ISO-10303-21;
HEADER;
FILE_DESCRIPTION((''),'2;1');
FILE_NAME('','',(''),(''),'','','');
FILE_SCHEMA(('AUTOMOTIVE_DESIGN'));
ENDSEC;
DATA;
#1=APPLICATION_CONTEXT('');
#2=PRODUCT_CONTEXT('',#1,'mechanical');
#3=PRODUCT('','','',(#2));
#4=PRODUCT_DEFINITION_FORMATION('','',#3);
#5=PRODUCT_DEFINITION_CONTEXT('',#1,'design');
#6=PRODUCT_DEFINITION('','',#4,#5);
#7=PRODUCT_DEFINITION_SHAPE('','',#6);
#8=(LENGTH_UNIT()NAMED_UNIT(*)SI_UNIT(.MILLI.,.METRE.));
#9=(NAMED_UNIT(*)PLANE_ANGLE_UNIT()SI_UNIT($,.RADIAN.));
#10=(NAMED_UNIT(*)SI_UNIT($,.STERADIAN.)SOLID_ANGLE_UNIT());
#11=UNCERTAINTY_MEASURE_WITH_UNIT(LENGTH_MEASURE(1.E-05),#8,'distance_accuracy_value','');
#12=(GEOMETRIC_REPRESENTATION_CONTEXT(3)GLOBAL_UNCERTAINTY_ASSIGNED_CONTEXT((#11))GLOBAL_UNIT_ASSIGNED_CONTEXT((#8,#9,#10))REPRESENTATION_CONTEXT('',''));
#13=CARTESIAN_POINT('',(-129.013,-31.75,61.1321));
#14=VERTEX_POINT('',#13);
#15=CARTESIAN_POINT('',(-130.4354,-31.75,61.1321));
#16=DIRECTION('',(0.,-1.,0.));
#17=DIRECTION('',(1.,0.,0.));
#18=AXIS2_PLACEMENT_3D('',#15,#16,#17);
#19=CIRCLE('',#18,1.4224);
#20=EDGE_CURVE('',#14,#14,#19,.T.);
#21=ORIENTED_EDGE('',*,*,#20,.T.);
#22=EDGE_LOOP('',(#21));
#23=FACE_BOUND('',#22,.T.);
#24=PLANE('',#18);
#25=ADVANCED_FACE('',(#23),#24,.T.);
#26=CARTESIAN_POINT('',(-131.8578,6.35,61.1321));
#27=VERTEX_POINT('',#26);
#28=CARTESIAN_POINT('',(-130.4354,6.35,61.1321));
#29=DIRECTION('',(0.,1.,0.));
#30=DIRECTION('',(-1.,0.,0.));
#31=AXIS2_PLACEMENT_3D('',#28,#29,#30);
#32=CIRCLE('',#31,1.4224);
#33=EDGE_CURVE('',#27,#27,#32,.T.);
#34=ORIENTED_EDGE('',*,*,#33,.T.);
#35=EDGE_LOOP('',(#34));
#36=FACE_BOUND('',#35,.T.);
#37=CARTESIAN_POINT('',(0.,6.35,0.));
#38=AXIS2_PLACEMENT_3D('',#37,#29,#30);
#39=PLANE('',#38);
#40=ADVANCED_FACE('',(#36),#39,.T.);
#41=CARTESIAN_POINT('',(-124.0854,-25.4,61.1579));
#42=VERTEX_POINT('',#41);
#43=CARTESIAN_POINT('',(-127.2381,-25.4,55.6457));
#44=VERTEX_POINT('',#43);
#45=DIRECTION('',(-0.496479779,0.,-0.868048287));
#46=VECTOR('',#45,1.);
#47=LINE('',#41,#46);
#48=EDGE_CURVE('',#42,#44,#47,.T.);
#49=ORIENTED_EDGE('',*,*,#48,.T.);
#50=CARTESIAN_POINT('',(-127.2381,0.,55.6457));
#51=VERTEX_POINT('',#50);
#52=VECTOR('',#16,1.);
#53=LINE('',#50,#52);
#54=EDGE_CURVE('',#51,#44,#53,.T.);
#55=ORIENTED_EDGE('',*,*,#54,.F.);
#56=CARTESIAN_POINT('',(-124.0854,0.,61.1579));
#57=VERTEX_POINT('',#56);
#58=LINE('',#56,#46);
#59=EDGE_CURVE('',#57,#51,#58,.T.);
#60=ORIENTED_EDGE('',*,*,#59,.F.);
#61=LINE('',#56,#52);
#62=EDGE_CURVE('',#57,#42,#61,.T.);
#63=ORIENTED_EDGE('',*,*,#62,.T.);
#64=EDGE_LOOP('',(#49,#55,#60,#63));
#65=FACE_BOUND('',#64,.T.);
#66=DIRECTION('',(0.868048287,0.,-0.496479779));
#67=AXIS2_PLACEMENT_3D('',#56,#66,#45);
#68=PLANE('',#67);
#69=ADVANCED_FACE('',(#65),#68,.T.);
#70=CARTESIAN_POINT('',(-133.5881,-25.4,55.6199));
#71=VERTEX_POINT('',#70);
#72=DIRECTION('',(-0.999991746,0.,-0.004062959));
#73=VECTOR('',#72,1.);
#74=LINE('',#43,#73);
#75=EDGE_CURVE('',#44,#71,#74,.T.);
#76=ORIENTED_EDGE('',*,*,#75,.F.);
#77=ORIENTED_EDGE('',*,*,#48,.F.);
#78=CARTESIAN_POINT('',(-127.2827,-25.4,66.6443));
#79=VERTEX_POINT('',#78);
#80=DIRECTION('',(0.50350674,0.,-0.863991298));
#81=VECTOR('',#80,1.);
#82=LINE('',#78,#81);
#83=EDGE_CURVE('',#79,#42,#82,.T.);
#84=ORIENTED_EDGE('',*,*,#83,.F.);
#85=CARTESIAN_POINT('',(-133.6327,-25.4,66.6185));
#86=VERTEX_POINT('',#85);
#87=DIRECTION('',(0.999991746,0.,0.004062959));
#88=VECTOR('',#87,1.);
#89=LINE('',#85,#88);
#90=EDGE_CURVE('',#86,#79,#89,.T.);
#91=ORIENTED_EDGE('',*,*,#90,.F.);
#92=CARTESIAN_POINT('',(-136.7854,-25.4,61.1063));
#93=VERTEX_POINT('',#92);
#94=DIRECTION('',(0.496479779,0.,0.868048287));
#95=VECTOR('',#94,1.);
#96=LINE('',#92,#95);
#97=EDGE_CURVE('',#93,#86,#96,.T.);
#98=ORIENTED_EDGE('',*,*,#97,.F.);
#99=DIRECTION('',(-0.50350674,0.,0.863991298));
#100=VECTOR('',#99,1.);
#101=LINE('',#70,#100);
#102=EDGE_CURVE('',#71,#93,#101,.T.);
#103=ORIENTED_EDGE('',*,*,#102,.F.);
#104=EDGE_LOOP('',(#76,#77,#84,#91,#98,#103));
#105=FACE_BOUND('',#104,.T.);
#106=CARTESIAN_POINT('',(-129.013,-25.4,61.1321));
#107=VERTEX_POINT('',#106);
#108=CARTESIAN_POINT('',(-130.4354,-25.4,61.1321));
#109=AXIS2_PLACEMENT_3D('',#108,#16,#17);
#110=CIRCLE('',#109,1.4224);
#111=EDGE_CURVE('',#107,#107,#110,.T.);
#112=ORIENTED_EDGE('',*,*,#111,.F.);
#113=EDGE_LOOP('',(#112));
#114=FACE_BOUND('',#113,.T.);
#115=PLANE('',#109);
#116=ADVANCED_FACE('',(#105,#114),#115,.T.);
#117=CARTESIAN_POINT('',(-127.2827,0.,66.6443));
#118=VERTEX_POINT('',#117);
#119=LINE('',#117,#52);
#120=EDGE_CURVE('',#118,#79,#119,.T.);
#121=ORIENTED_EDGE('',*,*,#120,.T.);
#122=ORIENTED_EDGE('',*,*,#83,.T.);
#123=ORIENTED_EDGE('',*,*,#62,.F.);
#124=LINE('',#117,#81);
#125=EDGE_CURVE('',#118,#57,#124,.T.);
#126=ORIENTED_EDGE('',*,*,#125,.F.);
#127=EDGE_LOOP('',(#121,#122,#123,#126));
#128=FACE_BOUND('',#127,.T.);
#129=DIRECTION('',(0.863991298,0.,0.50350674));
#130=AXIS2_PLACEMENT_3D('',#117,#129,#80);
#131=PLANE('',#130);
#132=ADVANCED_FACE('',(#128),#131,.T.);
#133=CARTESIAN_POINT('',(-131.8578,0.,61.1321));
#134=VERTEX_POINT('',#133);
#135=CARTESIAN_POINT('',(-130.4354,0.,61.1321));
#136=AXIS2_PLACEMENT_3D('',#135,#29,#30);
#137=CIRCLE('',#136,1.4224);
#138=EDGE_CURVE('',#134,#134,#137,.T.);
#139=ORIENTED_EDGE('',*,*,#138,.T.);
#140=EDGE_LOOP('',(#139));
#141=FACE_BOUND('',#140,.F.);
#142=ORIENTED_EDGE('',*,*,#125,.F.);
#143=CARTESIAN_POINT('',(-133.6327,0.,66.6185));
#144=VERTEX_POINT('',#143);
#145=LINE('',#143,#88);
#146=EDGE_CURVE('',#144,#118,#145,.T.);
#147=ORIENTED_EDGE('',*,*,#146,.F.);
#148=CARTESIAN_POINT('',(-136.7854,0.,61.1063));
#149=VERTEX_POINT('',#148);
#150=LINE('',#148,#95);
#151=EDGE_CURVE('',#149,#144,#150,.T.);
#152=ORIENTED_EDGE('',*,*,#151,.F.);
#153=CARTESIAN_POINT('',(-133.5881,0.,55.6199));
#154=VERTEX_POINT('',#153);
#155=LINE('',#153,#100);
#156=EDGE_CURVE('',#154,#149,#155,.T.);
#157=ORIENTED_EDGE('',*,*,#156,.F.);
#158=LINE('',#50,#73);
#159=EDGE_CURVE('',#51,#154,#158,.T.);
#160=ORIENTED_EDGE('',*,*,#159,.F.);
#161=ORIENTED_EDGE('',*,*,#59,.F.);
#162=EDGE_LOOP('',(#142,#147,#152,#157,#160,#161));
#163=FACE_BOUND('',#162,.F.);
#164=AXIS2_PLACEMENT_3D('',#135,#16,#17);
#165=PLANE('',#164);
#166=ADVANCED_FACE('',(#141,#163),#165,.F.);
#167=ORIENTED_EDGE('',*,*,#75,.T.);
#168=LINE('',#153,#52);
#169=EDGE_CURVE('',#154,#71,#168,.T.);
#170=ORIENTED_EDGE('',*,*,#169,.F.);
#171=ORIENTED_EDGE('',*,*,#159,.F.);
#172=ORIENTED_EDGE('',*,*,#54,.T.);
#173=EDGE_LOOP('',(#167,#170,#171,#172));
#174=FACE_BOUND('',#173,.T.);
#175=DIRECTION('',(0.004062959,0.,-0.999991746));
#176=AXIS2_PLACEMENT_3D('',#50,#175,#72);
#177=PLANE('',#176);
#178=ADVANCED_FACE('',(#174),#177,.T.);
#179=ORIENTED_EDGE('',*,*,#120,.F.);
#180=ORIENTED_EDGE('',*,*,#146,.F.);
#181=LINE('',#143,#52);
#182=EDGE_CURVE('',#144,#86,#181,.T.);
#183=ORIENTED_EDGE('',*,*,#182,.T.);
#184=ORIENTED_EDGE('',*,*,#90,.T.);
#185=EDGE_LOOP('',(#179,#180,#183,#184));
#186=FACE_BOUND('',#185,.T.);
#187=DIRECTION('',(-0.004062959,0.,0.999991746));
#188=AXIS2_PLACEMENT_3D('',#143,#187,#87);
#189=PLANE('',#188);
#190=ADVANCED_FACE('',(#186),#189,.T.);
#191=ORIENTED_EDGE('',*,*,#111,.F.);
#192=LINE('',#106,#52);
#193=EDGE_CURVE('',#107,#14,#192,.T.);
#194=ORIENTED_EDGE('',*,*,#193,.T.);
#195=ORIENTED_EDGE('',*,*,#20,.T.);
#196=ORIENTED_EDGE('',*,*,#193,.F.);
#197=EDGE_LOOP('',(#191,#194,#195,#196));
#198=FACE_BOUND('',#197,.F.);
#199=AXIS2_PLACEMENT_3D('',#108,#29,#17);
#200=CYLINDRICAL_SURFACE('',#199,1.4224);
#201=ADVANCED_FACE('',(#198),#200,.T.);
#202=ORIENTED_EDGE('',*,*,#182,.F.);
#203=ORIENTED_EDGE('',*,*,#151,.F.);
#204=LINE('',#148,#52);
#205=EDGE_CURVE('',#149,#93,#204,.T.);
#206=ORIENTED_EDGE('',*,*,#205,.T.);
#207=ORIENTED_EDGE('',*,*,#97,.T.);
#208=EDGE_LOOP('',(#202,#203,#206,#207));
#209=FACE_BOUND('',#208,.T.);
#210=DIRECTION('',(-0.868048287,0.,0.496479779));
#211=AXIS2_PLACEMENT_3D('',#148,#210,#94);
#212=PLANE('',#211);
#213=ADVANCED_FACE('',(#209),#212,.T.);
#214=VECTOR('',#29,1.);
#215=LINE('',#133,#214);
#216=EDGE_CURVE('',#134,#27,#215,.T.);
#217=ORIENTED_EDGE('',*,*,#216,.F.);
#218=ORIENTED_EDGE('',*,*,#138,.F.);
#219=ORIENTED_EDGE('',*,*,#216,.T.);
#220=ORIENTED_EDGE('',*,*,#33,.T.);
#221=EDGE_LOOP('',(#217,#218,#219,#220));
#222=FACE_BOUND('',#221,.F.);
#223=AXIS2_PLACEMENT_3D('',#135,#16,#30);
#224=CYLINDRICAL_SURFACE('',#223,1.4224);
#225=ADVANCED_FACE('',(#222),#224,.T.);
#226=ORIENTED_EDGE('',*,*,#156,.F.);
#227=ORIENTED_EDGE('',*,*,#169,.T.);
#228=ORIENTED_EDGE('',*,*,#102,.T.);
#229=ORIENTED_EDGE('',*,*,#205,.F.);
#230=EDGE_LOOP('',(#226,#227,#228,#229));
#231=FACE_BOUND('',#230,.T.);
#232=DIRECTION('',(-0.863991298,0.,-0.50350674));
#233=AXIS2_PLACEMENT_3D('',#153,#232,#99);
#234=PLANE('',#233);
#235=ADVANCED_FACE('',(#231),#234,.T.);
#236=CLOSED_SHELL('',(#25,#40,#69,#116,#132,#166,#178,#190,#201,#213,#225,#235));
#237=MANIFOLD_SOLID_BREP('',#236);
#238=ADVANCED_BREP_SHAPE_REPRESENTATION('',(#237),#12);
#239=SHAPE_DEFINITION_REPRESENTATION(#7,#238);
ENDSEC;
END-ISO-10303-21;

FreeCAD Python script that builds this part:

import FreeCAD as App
import Part
import Sketcher
from FreeCAD import Vector
Q = App.Units.Quantity

doc = App.newDocument("Part")
body = doc.addObject("PartDesign::Body", "Body")

# Sketch on XZ plane
sketch1 = doc.addObject("Sketcher::SketchObject", "Sketch")
body.addObject(sketch1)
sketch1.AttachmentSupport = (doc.XZ_Plane, [""])
sketch1.MapMode = "FlatFace"
sketch1.addGeometry(Part.Circle(Vector(-130.4354, 61.1321, 0), Vector(0, 0, 1), 1.4224), False)
sketch1.addConstraint([
    Sketcher.Constraint("Diameter", 0, Q("0.112 in")),
    Sketcher.Constraint("DistanceX", 0, 3, -1, 1, Q("130.4354 mm")),
    Sketcher.Constraint("DistanceY", -1, 1, 0, 3, Q("61.132 mm")),
])
pad1 = doc.addObject("PartDesign::Pad", "Pad")
body.addObject(pad1)
pad1.Profile = sketch1
pad1.Length = Q("0.25 in")
pad1.Reversed = True

# Sketch on XZ plane
sketch2 = doc.addObject("Sketcher::SketchObject", "Sketch001")
body.addObject(sketch2)
sketch2.AttachmentSupport = (doc.XZ_Plane, [""])
sketch2.MapMode = "FlatFace"
sketch2.addGeometry([
    Part.LineSegment(Vector(-124.0854, 61.1579, 0), Vector(-127.2827, 66.6443, 0)),  # 0
    Part.LineSegment(Vector(-127.2827, 66.6443, 0), Vector(-133.6327, 66.6185, 0)),  # 1
    Part.LineSegment(Vector(-133.6327, 66.6185, 0), Vector(-136.7854, 61.1063, 0)),  # 2
    Part.LineSegment(Vector(-136.7854, 61.1063, 0), Vector(-133.5881, 55.6199, 0)),  # 3
    Part.LineSegment(Vector(-133.5881, 55.6199, 0), Vector(-127.2381, 55.6457, 0)),  # 4
    Part.LineSegment(Vector(-127.2381, 55.6457, 0), Vector(-124.0854, 61.1579, 0)),  # 5
], False)
sketch2.addConstraint([
    Sketcher.Constraint("Coincident", 0, 2, 1, 1),
    Sketcher.Constraint("Coincident", 1, 2, 2, 1),
    Sketcher.Constraint("Coincident", 2, 2, 3, 1),
    Sketcher.Constraint("Coincident", 3, 2, 4, 1),
    Sketcher.Constraint("Coincident", 4, 2, 5, 1),
    Sketcher.Constraint("Coincident", 5, 2, 0, 1),
    Sketcher.Constraint("Parallel", 0, 3),
    Sketcher.Constraint("Parallel", 1, 4),
    Sketcher.Constraint("Parallel", 2, 5),
    Sketcher.Constraint("Equal", 0, 1),
    Sketcher.Constraint("Equal", 1, 2),
    Sketcher.Constraint("Equal", 2, 3),
    Sketcher.Constraint("Distance", 0, Q("0.25 in")),
    Sketcher.Constraint("DistanceX", 2, 2, 5, 2, Q("0.5 in")),
    Sketcher.Constraint("DistanceY", 3, 2, 2, 2, Q("0.216 in")),
    Sketcher.Constraint("DistanceY", 4, 2, 1, 2, Q("0.432 in")),
    Sketcher.Constraint("DistanceY", -1, 1, 0, 2, Q("2.6238 in")),
    Sketcher.Constraint("DistanceX", 0, 2, -1, 1, Q("127.2827 mm")),
])
pad2 = doc.addObject("PartDesign::Pad", "Pad001")
body.addObject(pad2)
pad2.Profile = sketch2
pad2.Length = Q("1 in")

# Sketch on XZ plane
sketch3 = doc.addObject("Sketcher::SketchObject", "Sketch002")
body.addObject(sketch3)
sketch3.AttachmentSupport = (doc.XZ_Plane, [""])
sketch3.MapMode = "FlatFace"
sketch3.AttachmentOffset = App.Placement(Vector(0, 0, 1 * 25.4), App.Rotation())
sketch3.addGeometry(Part.Circle(Vector(-130.4354, 61.1321, 0), Vector(0, 0, 1), 1.4224), False)
sketch3.addConstraint([
    Sketcher.Constraint("Diameter", 0, Q("0.112 in")),
    Sketcher.Constraint("DistanceX", 0, 3, -1, 1, Q("130.4354 mm")),
    Sketcher.Constraint("DistanceY", -1, 1, 0, 3, Q("61.132 mm")),
])
pad3 = doc.addObject("PartDesign::Pad", "Pad002")
body.addObject(pad3)
pad3.Profile = sketch3
pad3.Length = Q("0.25 in")

doc.recompute()
